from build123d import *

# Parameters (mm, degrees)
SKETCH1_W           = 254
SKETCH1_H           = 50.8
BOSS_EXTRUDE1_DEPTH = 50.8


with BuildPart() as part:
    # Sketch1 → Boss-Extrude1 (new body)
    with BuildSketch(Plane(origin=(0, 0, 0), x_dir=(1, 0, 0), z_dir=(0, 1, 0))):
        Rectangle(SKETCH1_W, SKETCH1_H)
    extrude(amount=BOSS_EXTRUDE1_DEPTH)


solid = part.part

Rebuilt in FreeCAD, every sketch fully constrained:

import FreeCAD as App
import Part
import Sketcher
Q = App.Units.Quantity

doc = App.newDocument("Part")
body = doc.addObject("PartDesign::Body", "Body")

# Sketch on XZ plane
sketch1 = body.newObject("Sketcher::SketchObject", "Sketch")
sketch1.AttachmentSupport = (doc.getObject("XZ_Plane"), [""])
sketch1.MapMode = "FlatFace"
sketch1.addGeometry([
    Part.LineSegment(App.Vector(-127, -25, 0), App.Vector(-127, 25, 0)),
    Part.LineSegment(App.Vector(-127, 25, 0), App.Vector(127, 25, 0)),
    Part.LineSegment(App.Vector(127, 25, 0), App.Vector(127, -25, 0)),
    Part.LineSegment(App.Vector(127, -25, 0), App.Vector(-127, -25, 0)),
], False)
sketch1.addConstraint([
    Sketcher.Constraint("Coincident", 0, 2, 1, 1),
    Sketcher.Constraint("Coincident", 1, 2, 2, 1),
    Sketcher.Constraint("Coincident", 2, 2, 3, 1),
    Sketcher.Constraint("Coincident", 3, 2, 0, 1),
    Sketcher.Constraint("Vertical", 0),
    Sketcher.Constraint("Horizontal", 1),
    Sketcher.Constraint("Vertical", 2),
    Sketcher.Constraint("Horizontal", 3),
    Sketcher.Constraint("Symmetric", 0, 2, 2, 2, -1, 1),
    Sketcher.Constraint("DistanceX", 1, 1, 1, 2, Q("10 in")),
    Sketcher.Constraint("DistanceY", 0, 1, 0, 2, Q("2 in")),
])
pad1 = body.newObject("PartDesign::Pad", "Pad")
pad1.Profile = sketch1
pad1.Length = Q("2 in")
pad1.Reversed = True

doc.recompute()
